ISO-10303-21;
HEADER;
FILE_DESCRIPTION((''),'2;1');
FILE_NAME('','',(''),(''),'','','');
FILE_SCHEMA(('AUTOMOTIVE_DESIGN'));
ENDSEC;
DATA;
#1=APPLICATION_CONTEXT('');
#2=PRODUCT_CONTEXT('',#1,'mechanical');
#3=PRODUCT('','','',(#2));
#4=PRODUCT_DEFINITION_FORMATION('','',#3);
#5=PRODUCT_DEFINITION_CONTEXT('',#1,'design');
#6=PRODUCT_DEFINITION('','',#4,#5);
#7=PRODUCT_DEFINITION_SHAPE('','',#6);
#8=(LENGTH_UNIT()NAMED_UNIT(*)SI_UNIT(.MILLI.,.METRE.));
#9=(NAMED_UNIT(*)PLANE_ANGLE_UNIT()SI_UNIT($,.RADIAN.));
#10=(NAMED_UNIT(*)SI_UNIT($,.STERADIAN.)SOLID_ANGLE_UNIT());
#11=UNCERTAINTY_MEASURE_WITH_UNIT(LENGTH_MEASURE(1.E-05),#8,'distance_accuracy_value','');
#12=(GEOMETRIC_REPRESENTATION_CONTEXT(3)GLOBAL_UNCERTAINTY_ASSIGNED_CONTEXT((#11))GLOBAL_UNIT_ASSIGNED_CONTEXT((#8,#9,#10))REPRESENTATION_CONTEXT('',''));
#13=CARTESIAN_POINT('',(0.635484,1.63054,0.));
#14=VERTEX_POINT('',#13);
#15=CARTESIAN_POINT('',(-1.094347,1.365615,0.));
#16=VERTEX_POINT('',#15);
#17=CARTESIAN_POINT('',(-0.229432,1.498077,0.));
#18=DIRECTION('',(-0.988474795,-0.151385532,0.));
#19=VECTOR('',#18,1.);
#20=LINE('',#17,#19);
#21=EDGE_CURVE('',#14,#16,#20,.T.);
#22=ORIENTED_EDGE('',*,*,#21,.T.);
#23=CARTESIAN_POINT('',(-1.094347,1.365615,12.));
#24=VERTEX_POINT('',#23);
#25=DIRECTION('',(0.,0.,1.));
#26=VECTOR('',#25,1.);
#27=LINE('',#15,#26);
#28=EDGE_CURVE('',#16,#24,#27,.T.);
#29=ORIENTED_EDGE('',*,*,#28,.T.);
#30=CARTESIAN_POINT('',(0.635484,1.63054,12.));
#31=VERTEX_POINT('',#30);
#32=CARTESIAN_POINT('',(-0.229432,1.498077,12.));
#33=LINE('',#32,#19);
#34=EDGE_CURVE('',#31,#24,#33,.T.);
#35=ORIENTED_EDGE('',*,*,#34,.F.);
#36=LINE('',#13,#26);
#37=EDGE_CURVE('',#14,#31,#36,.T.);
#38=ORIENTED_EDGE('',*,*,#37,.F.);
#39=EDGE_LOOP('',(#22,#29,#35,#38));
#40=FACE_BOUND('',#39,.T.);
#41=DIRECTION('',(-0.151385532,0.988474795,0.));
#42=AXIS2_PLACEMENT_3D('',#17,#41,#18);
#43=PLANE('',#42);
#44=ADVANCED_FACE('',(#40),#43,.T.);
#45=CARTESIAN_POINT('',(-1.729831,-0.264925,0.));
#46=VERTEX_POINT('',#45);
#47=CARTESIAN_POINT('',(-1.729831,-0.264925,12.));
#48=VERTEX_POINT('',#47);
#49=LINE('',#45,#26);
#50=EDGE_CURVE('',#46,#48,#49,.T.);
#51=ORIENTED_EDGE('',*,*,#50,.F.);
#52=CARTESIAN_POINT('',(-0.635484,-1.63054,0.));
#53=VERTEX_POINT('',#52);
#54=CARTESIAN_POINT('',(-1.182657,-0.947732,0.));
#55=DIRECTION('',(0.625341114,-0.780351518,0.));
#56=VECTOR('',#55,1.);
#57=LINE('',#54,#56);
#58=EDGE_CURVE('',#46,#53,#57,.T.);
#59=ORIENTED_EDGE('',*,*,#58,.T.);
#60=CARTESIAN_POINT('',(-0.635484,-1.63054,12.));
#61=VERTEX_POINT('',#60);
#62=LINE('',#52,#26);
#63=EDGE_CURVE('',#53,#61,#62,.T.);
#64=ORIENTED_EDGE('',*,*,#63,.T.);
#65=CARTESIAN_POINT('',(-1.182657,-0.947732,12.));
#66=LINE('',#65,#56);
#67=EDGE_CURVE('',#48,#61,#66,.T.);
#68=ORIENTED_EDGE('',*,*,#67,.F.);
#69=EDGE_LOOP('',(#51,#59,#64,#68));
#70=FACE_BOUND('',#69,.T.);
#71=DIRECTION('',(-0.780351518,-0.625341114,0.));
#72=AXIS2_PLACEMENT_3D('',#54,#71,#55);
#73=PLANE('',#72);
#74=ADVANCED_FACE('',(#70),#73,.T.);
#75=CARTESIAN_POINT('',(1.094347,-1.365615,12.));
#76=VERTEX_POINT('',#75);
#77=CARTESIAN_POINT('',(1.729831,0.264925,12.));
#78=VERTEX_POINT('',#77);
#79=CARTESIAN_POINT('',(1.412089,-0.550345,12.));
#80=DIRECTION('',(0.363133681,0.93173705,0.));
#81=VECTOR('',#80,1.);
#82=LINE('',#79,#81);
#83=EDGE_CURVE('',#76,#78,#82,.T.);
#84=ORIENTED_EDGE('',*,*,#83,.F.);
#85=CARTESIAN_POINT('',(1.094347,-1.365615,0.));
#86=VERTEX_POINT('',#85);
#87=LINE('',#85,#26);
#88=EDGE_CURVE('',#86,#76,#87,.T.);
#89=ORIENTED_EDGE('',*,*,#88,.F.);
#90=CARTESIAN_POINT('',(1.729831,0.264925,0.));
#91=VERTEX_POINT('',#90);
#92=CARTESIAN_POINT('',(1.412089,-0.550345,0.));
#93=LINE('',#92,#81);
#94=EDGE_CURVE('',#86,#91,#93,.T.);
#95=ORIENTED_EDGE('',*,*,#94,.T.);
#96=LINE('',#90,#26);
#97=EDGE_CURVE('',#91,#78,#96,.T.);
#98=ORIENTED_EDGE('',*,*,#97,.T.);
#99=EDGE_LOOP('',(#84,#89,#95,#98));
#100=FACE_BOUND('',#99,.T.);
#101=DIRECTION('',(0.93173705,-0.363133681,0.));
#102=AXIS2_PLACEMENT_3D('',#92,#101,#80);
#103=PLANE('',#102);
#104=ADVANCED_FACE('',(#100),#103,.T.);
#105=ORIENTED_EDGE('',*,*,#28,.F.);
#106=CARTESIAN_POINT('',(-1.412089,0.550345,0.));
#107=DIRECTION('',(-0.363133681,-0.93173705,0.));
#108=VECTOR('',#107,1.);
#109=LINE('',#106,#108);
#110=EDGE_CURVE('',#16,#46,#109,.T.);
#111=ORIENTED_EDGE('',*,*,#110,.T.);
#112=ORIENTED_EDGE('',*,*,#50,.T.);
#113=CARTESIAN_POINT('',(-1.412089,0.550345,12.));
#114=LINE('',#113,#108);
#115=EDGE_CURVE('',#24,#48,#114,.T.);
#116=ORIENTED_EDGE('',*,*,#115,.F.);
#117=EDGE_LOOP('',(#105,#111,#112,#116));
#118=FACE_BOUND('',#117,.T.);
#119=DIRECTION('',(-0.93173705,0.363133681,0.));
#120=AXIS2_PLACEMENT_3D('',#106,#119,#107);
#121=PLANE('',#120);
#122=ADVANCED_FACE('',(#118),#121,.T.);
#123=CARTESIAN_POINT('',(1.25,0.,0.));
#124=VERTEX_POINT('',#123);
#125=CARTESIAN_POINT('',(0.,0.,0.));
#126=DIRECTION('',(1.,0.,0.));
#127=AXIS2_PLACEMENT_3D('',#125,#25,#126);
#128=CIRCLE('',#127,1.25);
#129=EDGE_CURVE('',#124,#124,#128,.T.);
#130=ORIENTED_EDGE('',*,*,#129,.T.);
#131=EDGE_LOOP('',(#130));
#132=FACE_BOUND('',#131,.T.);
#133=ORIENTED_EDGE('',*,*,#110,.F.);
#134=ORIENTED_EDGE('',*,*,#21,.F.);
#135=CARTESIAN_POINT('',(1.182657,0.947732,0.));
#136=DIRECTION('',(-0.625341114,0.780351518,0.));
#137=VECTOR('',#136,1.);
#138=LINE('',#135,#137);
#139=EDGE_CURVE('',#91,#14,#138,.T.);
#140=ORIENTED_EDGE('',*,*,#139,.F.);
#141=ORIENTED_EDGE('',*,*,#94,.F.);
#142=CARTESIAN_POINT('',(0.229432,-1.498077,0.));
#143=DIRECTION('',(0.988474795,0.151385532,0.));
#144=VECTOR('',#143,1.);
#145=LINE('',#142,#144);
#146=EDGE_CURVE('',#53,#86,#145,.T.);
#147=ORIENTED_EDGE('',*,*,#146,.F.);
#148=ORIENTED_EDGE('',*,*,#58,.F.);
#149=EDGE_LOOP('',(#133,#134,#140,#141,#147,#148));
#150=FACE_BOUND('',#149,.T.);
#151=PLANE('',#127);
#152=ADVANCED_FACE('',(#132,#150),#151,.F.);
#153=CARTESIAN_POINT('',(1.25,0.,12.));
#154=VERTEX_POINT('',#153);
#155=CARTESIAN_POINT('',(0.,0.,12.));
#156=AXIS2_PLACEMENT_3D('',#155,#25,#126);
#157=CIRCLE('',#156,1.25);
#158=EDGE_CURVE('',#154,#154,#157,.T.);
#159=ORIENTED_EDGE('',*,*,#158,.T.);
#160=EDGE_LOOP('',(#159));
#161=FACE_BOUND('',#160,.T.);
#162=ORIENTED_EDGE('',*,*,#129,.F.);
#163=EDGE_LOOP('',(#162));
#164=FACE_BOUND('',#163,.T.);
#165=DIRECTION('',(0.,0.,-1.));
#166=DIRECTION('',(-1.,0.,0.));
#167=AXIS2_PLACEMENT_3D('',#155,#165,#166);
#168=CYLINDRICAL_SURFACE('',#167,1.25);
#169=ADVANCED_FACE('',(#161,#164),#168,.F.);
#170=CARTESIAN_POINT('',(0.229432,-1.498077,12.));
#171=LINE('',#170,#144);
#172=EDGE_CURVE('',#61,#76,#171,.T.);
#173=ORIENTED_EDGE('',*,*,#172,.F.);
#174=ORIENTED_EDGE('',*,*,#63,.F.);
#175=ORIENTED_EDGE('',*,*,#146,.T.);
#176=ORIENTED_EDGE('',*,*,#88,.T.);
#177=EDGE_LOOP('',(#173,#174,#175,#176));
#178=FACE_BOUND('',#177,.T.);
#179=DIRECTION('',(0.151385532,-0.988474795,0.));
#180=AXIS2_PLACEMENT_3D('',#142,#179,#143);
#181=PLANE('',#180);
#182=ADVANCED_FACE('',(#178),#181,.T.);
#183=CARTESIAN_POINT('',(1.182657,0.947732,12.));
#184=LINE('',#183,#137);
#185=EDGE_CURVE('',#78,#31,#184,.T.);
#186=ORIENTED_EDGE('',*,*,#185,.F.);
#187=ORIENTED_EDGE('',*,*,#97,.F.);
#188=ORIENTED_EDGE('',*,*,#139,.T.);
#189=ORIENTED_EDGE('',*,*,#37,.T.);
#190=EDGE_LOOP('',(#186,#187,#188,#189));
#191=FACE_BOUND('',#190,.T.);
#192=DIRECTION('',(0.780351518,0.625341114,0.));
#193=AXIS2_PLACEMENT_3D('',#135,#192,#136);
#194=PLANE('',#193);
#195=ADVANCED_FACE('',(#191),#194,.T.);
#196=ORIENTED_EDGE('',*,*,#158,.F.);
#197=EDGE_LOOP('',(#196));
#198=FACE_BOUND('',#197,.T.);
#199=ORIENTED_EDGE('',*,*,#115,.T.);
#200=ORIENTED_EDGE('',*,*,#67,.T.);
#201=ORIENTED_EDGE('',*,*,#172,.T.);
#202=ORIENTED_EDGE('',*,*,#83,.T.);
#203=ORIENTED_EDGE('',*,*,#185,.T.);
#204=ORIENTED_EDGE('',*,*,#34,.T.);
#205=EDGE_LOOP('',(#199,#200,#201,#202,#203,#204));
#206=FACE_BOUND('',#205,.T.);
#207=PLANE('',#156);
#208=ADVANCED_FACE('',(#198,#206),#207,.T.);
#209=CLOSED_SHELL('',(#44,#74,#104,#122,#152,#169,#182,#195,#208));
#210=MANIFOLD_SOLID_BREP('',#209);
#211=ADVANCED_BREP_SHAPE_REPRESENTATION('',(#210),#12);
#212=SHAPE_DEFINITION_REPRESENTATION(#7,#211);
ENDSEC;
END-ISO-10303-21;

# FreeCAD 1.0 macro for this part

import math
import FreeCAD as App
import Part
import Sketcher
Q = App.Units.Quantity

doc = App.newDocument("Part")
body = doc.addObject("PartDesign::Body", "Body")

# Sketch on XY plane
sketch1 = body.newObject("Sketcher::SketchObject", "Sketch")
sketch1.AttachmentSupport = (doc.getObject("XY_Plane"), [""])
sketch1.MapMode = "FlatFace"
sketch1.addGeometry([
    Part.Circle(App.Vector(0, 0, 0), App.Vector(0, 0, 1), 1.75),
    Part.Circle(App.Vector(0, 0, 0), App.Vector(0, 0, 1), 1.25),
], False)
sketch1.addConstraint([
    Sketcher.Constraint("Coincident", 0, 3, -1, 1),
    Sketcher.Constraint("Coincident", 1, 3, -1, 1),
    Sketcher.Constraint("Diameter", 0, Q("3.5 mm")),
    Sketcher.Constraint("Diameter", 1, Q("2.5 mm")),
])
pad1 = body.newObject("PartDesign::Pad", "Pad")
pad1.Profile = sketch1
pad1.Length = 12

# Sketch on XY plane
sketch2 = body.newObject("Sketcher::SketchObject", "Sketch001")
sketch2.AttachmentSupport = (doc.getObject("XY_Plane"), [""])
sketch2.MapMode = "FlatFace"
sketch2.addGeometry([
    Part.ArcOfCircle(Part.Circle(App.Vector(0, 0, 0), App.Vector(0, 0, 1), 1.75), math.radians(128.707229), math.radians(188.707229)),  # 0
    Part.LineSegment(App.Vector(-1.729831, -0.264925, 0), App.Vector(-1.094347, 1.365615, 0)),  # 1
    Part.LineSegment(App.Vector(-1.094347, 1.365615, 0), App.Vector(0.635484, 1.63054, 0)),  # 2
    Part.ArcOfCircle(Part.Circle(App.Vector(0, 0, 0), App.Vector(0, 0, 1), 1.75), math.radians(68.707229), math.radians(128.707229)),  # 3
    Part.LineSegment(App.Vector(0.635484, 1.63054, 0), App.Vector(1.729831, 0.264925, 0)),  # 4
    Part.ArcOfCircle(Part.Circle(App.Vector(0, 0, 0), App.Vector(0, 0, 1), 1.75), math.radians(8.707229), math.radians(68.707229)),  # 5
    Part.LineSegment(App.Vector(1.729831, 0.264925, 0), App.Vector(1.094347, -1.365615, 0)),  # 6
    Part.ArcOfCircle(Part.Circle(App.Vector(0, 0, 0), App.Vector(0, 0, 1), 1.75), math.radians(-51.292771), math.radians(0)),  # 7
    Part.ArcOfCircle(Part.Circle(App.Vector(0, 0, 0), App.Vector(0, 0, 1), 1.75), math.radians(0), math.radians(8.707229)),  # 8
    Part.ArcOfCircle(Part.Circle(App.Vector(0, 0, 0), App.Vector(0, 0, 1), 1.75), math.radians(-111.292771), math.radians(-51.292771)),  # 9
    Part.LineSegment(App.Vector(1.094347, -1.365615, 0), App.Vector(-0.635484, -1.63054, 0)),  # 10
    Part.ArcOfCircle(Part.Circle(App.Vector(0, 0, 0), App.Vector(0, 0, 1), 1.75), math.radians(-171.292771), math.radians(-111.292771)),  # 11
    Part.LineSegment(App.Vector(-0.635484, -1.63054, 0), App.Vector(-1.729831, -0.264925, 0)),  # 12
], False)
sketch2.addConstraint([
    Sketcher.Constraint("Coincident", 0, 1, 1, 2),
    Sketcher.Constraint("Coincident", 1, 1, 0, 2),
    Sketcher.Constraint("Coincident", 2, 1, 3, 2),
    Sketcher.Constraint("Coincident", 3, 1, 2, 2),
    Sketcher.Constraint("Coincident", 4, 1, 5, 2),
    Sketcher.Constraint("Coincident", 5, 1, 4, 2),
    Sketcher.Constraint("Coincident", 6, 2, 7, 1),
    Sketcher.Constraint("Tangent", 7, 2, 8, 1),
    Sketcher.Constraint("Coincident", 8, 2, 6, 1),
    Sketcher.Constraint("Coincident", 9, 1, 10, 2),
    Sketcher.Constraint("Coincident", 10, 1, 9, 2),
    Sketcher.Constraint("Coincident", 11, 1, 12, 2),
    Sketcher.Constraint("Coincident", 12, 1, 11, 2),
    Sketcher.Constraint("Coincident", 0, 3, -1, 1),
    Sketcher.Constraint("Coincident", 3, 3, -1, 1),
    Sketcher.Constraint("Coincident", 5, 3, -1, 1),
    Sketcher.Constraint("Coincident", 7, 3, -1, 1),
    Sketcher.Constraint("Coincident", 9, 3, -1, 1),
    Sketcher.Constraint("Coincident", 11, 3, -1, 1),
    Sketcher.Constraint("Coincident", 2, 1, 0, 1),
    Sketcher.Constraint("Coincident", 4, 1, 3, 1),
    Sketcher.Constraint("Coincident", 8, 2, 5, 1),
    Sketcher.Constraint("Coincident", 10, 1, 6, 2),
    Sketcher.Constraint("Coincident", 11, 1, 1, 1),
    Sketcher.Constraint("Coincident", 12, 1, 9, 1),
    Sketcher.Constraint("PointOnObject", 7, 2, -1),
    Sketcher.Constraint("Parallel", 1, 6),
    Sketcher.Constraint("Parallel", 2, 10),
    Sketcher.Constraint("Equal", 1, 2),
    Sketcher.Constraint("Equal", 2, 4),
    Sketcher.Constraint("Equal", 4, 6),
    Sketcher.Constraint("Radius", 0, Q("1.75 mm")),
    Sketcher.Constraint("DistanceX", 1, 1, -1, 1, Q("1.729831 mm")),
])
pocket1 = body.newObject("PartDesign::Pocket", "Pocket")
pocket1.Profile = sketch2
pocket1.Length = 12
pocket1.Reversed = True

doc.recompute()
